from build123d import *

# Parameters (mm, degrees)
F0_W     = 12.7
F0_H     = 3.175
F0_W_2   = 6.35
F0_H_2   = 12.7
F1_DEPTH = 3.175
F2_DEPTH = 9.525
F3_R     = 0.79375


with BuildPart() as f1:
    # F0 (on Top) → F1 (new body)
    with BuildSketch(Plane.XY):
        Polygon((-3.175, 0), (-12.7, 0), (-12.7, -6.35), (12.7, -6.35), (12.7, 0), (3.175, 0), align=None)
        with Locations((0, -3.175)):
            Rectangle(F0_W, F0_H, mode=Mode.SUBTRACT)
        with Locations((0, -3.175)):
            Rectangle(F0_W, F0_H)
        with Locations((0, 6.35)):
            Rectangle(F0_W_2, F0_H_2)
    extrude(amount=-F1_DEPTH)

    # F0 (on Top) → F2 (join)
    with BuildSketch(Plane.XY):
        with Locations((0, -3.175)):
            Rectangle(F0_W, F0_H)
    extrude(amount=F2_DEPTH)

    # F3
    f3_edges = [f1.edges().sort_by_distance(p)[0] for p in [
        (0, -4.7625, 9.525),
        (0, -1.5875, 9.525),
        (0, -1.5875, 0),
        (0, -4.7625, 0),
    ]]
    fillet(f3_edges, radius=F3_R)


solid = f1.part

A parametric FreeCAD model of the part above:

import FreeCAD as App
import Part
import Sketcher

V = App.Vector
Q = App.Units.Quantity


def edges_at(feature, points):
    """Names of the edges that pass closest to the given points."""
    edges = feature.Shape.Edges
    near = lambda p: min(range(len(edges)), key=lambda i: edges[i].distToShape(Part.Vertex(*p))[0])
    return sorted({f"Edge{near(p) + 1}" for p in points})

doc = App.newDocument("Part")
params = doc.addObject("Spreadsheet::Sheet", "Params")
for row, (alias, value) in enumerate([
    ("sketch1_width", "1 in"),
    ("sketch1_height", "0.5 in"),
    ("sketch1_width2", "0.25 in"),
    ("pad1_length", "0.125 in"),
    ("sketch2_width", "0.5 in"),
    ("sketch2_height", "0.125 in"),
    ("pad2_length", "0.375 in"),
    ("fillet_radius", "0.03125 in"),
], start=1):
    params.set(f"A{row}", alias)
    params.set(f"B{row}", "=" + value)
    params.setAlias(f"B{row}", alias)

body = doc.addObject("PartDesign::Body", "Body")

# Sketch on XY plane
sketch1 = body.newObject("Sketcher::SketchObject", "Sketch")
sketch1.AttachmentSupport = (doc.getObject("XY_Plane"), [""])
sketch1.MapMode = "FlatFace"
sketch1.addGeometry([
    Part.LineSegment(V(-12.7, 0, 0), V(-12.7, -6.35, 0)),  # 0
    Part.LineSegment(V(-12.7, -6.35, 0), V(12.7, -6.35, 0)),  # 1
    Part.LineSegment(V(12.7, -6.35, 0), V(12.7, 0, 0)),  # 2
    Part.LineSegment(V(12.7, 0, 0), V(3.175, 0, 0)),  # 3
    Part.LineSegment(V(3.175, 0, 0), V(3.175, 12.7, 0)),  # 4
    Part.LineSegment(V(3.175, 12.7, 0), V(-3.175, 12.7, 0)),  # 5
    Part.LineSegment(V(-3.175, 12.7, 0), V(-3.175, 0, 0)),  # 6
    Part.LineSegment(V(-3.175, 0, 0), V(-12.7, 0, 0)),  # 7
], False)
sketch1.addConstraint([
    Sketcher.Constraint("Coincident", 0, 2, 1, 1),
    Sketcher.Constraint("Coincident", 1, 2, 2, 1),
    Sketcher.Constraint("Coincident", 2, 2, 3, 1),
    Sketcher.Constraint("Coincident", 3, 2, 4, 1),
    Sketcher.Constraint("Coincident", 4, 2, 5, 1),
    Sketcher.Constraint("Coincident", 5, 2, 6, 1),
    Sketcher.Constraint("Coincident", 6, 2, 7, 1),
    Sketcher.Constraint("Coincident", 7, 2, 0, 1),
    Sketcher.Constraint("Vertical", 0),
    Sketcher.Constraint("Horizontal", 1),
    Sketcher.Constraint("Vertical", 2),
    Sketcher.Constraint("Horizontal", 3),
    Sketcher.Constraint("Vertical", 4),
    Sketcher.Constraint("Horizontal", 5),
    Sketcher.Constraint("Vertical", 6),
    Sketcher.Constraint("Horizontal", 7),
    Sketcher.Constraint("Symmetric", 3, 2, 6, 2, -1, 1),
    Sketcher.Constraint("Symmetric", 2, 2, 7, 2, -2),
    Sketcher.Constraint("Equal", 5, 0),
    Sketcher.Constraint("DistanceX", 1, 1, 1, 2, Q("1 in")),
    Sketcher.Constraint("DistanceY", 4, 1, 4, 2, Q("0.5 in")),
    Sketcher.Constraint("DistanceX", 5, 2, 5, 1, Q("0.25 in")),
])
sketch1.setExpression("Constraints[19]", "Params.sketch1_width")
sketch1.setExpression("Constraints[20]", "Params.sketch1_height")
sketch1.setExpression("Constraints[21]", "Params.sketch1_width2")
pad1 = body.newObject("PartDesign::Pad", "Pad")
pad1.Profile = sketch1
pad1.setExpression("Length", "Params.pad1_length")
pad1.Reversed = True

# Sketch on XY plane
sketch2 = body.newObject("Sketcher::SketchObject", "Sketch001")
sketch2.AttachmentSupport = (doc.getObject("XY_Plane"), [""])
sketch2.MapMode = "FlatFace"
sketch2.addGeometry([
    Part.LineSegment(V(-6.35, -1.5875, 0), V(-6.35, -4.7625, 0)),
    Part.LineSegment(V(-6.35, -4.7625, 0), V(6.35, -4.7625, 0)),
    Part.LineSegment(V(6.35, -4.7625, 0), V(6.35, -1.5875, 0)),
    Part.LineSegment(V(6.35, -1.5875, 0), V(-6.35, -1.5875, 0)),
], False)
sketch2.addConstraint([
    Sketcher.Constraint("Coincident", 0, 2, 1, 1),
    Sketcher.Constraint("Coincident", 1, 2, 2, 1),
    Sketcher.Constraint("Coincident", 2, 2, 3, 1),
    Sketcher.Constraint("Coincident", 3, 2, 0, 1),
    Sketcher.Constraint("Vertical", 0),
    Sketcher.Constraint("Horizontal", 1),
    Sketcher.Constraint("Vertical", 2),
    Sketcher.Constraint("Horizontal", 3),
    Sketcher.Constraint("DistanceX", 1, 1, 1, 2, Q("0.5 in")),
    Sketcher.Constraint("DistanceY", 0, 2, 0, 1, Q("0.125 in")),
    Sketcher.Constraint("DistanceX", 0, 2, -1, 1, Q("0.25 in")),
    Sketcher.Constraint("DistanceY", 0, 2, -1, 1, Q("0.1875 in")),
])
sketch2.setExpression("Constraints[8]", "Params.sketch2_width")
sketch2.setExpression("Constraints[9]", "Params.sketch2_height")
pad2 = body.newObject("PartDesign::Pad", "Pad001")
pad2.Profile = sketch2
pad2.setExpression("Length", "Params.pad2_length")
doc.recompute()

fillet = body.newObject("PartDesign::Fillet", "Fillet")
fillet.Base = (pad2, edges_at(pad2, [
    (0, -4.763, 9.525),
    (0, -1.587, 9.525),
    (0, -1.587, 0),
    (0, -4.763, 0),
]))
fillet.setExpression("Radius", "Params.fillet_radius")

doc.recompute()
